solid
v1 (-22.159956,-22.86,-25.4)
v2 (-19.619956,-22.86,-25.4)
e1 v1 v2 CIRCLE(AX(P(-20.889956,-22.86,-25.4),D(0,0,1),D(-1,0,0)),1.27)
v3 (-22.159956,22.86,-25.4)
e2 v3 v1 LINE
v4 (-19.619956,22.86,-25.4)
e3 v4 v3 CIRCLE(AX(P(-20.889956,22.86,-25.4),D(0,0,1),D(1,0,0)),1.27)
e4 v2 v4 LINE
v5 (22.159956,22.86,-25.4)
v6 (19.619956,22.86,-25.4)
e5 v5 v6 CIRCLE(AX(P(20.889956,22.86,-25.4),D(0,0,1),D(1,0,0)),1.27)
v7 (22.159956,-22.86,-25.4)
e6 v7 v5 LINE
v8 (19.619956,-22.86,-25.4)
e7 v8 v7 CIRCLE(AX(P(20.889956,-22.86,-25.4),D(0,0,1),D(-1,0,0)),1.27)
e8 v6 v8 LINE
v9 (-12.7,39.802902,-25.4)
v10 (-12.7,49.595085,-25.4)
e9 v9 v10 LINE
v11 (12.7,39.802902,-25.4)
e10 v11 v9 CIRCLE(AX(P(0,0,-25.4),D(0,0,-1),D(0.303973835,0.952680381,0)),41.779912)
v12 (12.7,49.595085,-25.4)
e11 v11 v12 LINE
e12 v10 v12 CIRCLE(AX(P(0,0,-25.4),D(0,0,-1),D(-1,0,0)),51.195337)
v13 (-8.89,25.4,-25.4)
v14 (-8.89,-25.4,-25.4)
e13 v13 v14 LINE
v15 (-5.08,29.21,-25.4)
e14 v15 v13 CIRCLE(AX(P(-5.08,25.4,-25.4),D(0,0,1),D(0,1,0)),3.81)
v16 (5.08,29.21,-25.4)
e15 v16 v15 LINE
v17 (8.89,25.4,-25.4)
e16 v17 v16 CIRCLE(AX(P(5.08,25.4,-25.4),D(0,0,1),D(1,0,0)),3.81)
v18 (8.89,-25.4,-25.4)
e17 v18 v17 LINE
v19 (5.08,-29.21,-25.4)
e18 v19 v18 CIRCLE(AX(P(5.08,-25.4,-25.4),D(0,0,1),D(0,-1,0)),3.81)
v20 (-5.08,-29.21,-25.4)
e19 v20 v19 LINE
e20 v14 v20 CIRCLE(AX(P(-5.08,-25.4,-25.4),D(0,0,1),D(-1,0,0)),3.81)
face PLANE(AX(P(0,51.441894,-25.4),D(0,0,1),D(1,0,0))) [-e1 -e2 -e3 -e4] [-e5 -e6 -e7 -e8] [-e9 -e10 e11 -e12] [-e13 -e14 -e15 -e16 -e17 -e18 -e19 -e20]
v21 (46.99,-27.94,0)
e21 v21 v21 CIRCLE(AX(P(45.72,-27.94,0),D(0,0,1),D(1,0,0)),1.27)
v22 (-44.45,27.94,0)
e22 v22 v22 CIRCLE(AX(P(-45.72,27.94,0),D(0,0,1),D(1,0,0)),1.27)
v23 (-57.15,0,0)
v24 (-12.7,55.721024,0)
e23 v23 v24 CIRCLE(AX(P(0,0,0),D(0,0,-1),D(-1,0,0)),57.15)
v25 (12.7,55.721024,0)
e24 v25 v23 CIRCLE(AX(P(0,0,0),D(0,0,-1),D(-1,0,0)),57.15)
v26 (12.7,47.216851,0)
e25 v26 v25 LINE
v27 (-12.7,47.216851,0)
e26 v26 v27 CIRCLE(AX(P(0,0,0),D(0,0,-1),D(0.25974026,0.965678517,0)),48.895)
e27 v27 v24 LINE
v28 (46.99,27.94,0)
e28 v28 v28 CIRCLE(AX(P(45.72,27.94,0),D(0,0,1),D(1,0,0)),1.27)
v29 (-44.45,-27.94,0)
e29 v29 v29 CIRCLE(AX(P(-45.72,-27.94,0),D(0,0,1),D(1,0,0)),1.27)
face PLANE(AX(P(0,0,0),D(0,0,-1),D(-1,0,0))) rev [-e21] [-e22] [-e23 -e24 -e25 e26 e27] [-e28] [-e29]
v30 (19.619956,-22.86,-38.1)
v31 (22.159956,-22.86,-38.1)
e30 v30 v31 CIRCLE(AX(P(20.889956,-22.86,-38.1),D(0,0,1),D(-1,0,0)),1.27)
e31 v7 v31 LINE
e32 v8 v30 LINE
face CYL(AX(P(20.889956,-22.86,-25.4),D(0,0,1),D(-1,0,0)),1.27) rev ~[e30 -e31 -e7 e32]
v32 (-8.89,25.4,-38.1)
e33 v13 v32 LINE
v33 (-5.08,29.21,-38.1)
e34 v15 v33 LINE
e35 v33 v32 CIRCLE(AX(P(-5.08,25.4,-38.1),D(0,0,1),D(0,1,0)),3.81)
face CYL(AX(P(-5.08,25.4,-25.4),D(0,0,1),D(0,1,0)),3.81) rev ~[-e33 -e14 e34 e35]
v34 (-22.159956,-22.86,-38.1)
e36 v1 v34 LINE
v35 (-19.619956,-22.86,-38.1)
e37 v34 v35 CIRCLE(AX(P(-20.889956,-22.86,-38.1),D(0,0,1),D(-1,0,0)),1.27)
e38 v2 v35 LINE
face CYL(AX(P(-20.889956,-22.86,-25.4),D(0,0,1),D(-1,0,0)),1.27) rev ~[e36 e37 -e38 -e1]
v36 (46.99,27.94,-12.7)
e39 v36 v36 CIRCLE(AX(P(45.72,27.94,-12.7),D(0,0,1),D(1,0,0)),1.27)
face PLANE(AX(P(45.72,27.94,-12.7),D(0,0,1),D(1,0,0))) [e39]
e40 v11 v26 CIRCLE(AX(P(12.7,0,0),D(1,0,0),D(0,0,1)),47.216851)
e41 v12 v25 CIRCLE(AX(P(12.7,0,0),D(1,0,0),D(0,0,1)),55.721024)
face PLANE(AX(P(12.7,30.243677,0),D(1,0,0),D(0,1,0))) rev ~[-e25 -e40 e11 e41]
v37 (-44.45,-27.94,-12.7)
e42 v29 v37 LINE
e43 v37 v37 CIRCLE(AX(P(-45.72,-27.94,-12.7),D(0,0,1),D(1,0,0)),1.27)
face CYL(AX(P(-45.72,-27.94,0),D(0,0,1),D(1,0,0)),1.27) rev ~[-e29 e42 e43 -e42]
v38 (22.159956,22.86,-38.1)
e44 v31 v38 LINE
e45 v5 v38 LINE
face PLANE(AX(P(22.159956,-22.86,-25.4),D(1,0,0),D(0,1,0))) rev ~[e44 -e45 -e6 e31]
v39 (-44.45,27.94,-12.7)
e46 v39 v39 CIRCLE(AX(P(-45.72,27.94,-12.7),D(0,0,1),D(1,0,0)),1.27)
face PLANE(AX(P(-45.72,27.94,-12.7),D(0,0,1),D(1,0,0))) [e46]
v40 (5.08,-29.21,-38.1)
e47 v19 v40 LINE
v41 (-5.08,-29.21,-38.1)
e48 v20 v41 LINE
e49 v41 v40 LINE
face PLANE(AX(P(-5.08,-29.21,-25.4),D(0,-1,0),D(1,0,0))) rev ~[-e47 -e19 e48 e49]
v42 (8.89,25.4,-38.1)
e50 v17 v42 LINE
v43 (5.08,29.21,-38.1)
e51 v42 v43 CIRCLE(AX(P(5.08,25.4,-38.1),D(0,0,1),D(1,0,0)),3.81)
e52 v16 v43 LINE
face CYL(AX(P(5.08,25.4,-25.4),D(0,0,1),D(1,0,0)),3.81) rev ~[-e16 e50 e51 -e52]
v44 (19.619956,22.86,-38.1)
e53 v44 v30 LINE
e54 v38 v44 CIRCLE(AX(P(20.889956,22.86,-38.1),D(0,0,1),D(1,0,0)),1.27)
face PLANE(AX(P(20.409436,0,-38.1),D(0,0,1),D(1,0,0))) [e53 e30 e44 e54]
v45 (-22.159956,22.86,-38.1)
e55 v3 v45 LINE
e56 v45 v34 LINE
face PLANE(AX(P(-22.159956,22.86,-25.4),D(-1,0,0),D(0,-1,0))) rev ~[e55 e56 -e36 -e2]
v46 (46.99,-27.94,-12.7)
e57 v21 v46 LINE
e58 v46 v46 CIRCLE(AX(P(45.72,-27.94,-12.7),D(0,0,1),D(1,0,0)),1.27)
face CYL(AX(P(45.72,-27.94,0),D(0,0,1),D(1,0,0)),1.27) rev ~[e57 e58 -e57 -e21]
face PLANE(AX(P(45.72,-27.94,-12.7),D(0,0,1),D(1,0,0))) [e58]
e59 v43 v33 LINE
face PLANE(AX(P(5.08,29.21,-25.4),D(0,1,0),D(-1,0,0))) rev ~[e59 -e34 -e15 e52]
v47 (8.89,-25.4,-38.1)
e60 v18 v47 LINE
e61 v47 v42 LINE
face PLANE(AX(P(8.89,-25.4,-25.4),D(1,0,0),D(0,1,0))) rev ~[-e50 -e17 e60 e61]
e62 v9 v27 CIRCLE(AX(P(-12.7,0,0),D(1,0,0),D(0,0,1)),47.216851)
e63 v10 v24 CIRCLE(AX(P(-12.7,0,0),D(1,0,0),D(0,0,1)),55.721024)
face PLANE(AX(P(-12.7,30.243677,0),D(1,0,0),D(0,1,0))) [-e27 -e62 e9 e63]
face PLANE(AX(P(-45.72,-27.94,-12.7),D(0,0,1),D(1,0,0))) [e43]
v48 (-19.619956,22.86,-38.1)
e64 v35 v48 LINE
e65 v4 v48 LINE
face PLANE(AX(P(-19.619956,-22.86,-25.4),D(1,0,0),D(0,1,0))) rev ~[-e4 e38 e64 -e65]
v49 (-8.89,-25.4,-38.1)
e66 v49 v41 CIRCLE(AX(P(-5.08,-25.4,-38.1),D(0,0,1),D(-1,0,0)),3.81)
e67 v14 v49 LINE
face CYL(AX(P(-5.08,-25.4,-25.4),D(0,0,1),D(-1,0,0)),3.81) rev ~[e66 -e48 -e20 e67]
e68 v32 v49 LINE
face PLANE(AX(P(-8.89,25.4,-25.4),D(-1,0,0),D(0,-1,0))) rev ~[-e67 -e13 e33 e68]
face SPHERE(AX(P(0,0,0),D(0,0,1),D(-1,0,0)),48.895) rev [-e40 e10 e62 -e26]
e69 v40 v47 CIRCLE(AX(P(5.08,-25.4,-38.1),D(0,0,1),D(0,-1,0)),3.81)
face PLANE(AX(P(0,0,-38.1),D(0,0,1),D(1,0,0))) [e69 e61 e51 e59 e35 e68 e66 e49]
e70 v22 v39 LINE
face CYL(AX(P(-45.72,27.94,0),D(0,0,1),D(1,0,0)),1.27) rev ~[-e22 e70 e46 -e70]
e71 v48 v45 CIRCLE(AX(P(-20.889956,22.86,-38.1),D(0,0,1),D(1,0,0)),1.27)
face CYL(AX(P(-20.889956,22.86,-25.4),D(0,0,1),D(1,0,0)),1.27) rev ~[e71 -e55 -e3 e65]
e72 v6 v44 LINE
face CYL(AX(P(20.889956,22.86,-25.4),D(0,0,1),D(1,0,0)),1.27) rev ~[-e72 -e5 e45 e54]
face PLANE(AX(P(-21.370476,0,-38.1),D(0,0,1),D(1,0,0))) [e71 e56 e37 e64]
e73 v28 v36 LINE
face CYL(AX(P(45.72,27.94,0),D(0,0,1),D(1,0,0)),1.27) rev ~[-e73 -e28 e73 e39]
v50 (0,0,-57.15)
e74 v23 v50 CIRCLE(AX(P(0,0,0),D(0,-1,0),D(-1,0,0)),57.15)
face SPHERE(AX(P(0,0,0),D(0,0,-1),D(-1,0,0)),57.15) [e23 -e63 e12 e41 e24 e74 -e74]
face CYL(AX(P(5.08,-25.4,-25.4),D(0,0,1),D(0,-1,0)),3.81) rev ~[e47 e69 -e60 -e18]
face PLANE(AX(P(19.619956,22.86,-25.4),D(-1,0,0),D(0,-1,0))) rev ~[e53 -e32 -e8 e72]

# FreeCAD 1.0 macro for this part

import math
import FreeCAD as App
import Part
import Sketcher

V = App.Vector
Q = App.Units.Quantity

doc = App.newDocument("Part")
params = doc.addObject("Spreadsheet::Sheet", "Params")
for row, (alias, value) in enumerate([
    ("sketch1_radius", "2.25 in"),
    ("sketch1_radius2", "1.925 in"),
    ("revolution_angle", "360 deg"),
    ("sketch2_diameter", "0.1 in"),
    ("pocket1_length", "0.5 in"),
    ("sketch3_height", "2 in"),
    ("sketch3_radius", "0.05 in"),
    ("sketch3_radius2", "0.15 in"),
    ("sketch3_width", "0.4 in"),
    ("sketch3_height2", "1.8 in"),
    ("pocket2_length", "0.5 in"),
    ("sketch4_width", "1 in"),
    ("pocket3_length", "1 in"),
], start=1):
    params.set(f"A{row}", alias)
    params.set(f"B{row}", "=" + value)
    params.setAlias(f"B{row}", alias)

body = doc.addObject("PartDesign::Body", "Body")

# Sketch on XZ plane
sketch1 = doc.addObject("Sketcher::SketchObject", "Sketch")
body.addObject(sketch1)
sketch1.AttachmentSupport = (doc.XZ_Plane, [""])
sketch1.MapMode = "FlatFace"
sketch1.addGeometry([
    Part.LineSegment(V(-49, 0, 0), V(-57, 0, 0)),  # 0
    Part.ArcOfCircle(Part.Circle(V(0, 0, 0), V(0, 0, 1), 57), math.radians(180), math.radians(270)),  # 1
    Part.LineSegment(V(0, -57, 0), V(0, -25, 0)),  # 2
    Part.LineSegment(V(0, -25, 0), V(-42, -25, 0)),  # 3
    Part.ArcOfCircle(Part.Circle(V(0, 0, 0), V(0, 0, 1), 49), math.radians(180), math.radians(211)),  # 4
], False)
sketch1.addConstraint([
    Sketcher.Constraint("Coincident", 0, 2, 1, 1),
    Sketcher.Constraint("Coincident", 1, 2, 2, 1),
    Sketcher.Constraint("Coincident", 2, 2, 3, 1),
    Sketcher.Constraint("Coincident", 3, 2, 4, 2),
    Sketcher.Constraint("Coincident", 4, 1, 0, 1),
    Sketcher.Constraint("Horizontal", 0),
    Sketcher.Constraint("Vertical", 2),
    Sketcher.Constraint("Horizontal", 3),
    Sketcher.Constraint("Coincident", 1, 3, -1, 1),
    Sketcher.Constraint("Coincident", 4, 3, -1, 1),
    Sketcher.Constraint("PointOnObject", 0, 2, -1),
    Sketcher.Constraint("PointOnObject", 1, 2, -2),
    Sketcher.Constraint("Radius", 1, Q("2.25 in")),
    Sketcher.Constraint("DistanceY", 2, 2, -1, 1, Q("1 in")),
    Sketcher.Constraint("Radius", 4, Q("1.925 in")),
])
sketch1.setExpression("Constraints[12]", "Params.sketch1_radius")
sketch1.setExpression("Constraints[14]", "Params.sketch1_radius2")
revolution = doc.addObject("PartDesign::Revolution", "Revolution")
body.addObject(revolution)
revolution.Profile = sketch1
revolution.ReferenceAxis = (sketch1, ["V_Axis"])
revolution.setExpression("Angle", "Params.revolution_angle")

# Sketch on XY plane
sketch2 = doc.addObject("Sketcher::SketchObject", "Sketch001")
body.addObject(sketch2)
sketch2.AttachmentSupport = (doc.XY_Plane, [""])
sketch2.MapMode = "FlatFace"
sketch2.addGeometry([
    Part.Circle(V(45.7, 27.9, 0), V(0, 0, 1), 1.3),
    Part.Circle(V(45.7, -27.9, 0), V(0, 0, 1), 1.3),
    Part.Circle(V(-45.7, -27.9, 0), V(0, 0, 1), 1.3),
    Part.Circle(V(-45.7, 27.9, 0), V(0, 0, 1), 1.3),
], False)
sketch2.addConstraint([
    Sketcher.Constraint("Equal", 0, 1),
    Sketcher.Constraint("Equal", 1, 2),
    Sketcher.Constraint("Equal", 2, 3),
    Sketcher.Constraint("Symmetric", 0, 3, 2, 3, -1, 1),
    Sketcher.Constraint("Symmetric", 1, 3, 3, 3, -1, 1),
    Sketcher.Constraint("Symmetric", 1, 3, 2, 3, -2),
    Sketcher.Constraint("Diameter", 0, Q("0.1 in")),
    Sketcher.Constraint("DistanceX", -1, 1, 0, 3, Q("1.8 in")),
    Sketcher.Constraint("DistanceY", -1, 1, 0, 3, Q("1.1 in")),
])
sketch2.setExpression("Constraints[6]", "Params.sketch2_diameter")
pocket1 = doc.addObject("PartDesign::Pocket", "Pocket")
body.addObject(pocket1)
pocket1.Profile = sketch2
pocket1.setExpression("Length", "Params.pocket1_length")

# Sketch on XY plane
sketch3 = doc.addObject("Sketcher::SketchObject", "Sketch002")
body.addObject(sketch3)
sketch3.AttachmentSupport = (doc.XY_Plane, [""])
sketch3.MapMode = "FlatFace"
sketch3.AttachmentOffset = App.Placement(V(0, 0, -1 * 25.4), App.Rotation())
sketch3.addGeometry([
    Part.ArcOfCircle(Part.Circle(V(-20.9, 22.9, 0), V(0, 0, 1), 1.3), math.radians(0), math.radians(180)),  # 0
    Part.LineSegment(V(-22.2, 22.9, 0), V(-22.2, -22.9, 0)),  # 1
    Part.ArcOfCircle(Part.Circle(V(-20.9, -22.9, 0), V(0, 0, 1), 1.3), math.radians(180), math.radians(360)),  # 2
    Part.LineSegment(V(-19.6, -22.9, 0), V(-19.6, 22.9, 0)),  # 3
    Part.ArcOfCircle(Part.Circle(V(20.9, 22.9, 0), V(0, 0, 1), 1.3), math.radians(0), math.radians(180)),  # 4
    Part.LineSegment(V(19.6, 22.9, 0), V(19.6, -22.9, 0)),  # 5
    Part.ArcOfCircle(Part.Circle(V(20.9, -22.9, 0), V(0, 0, 1), 1.3), math.radians(180), math.radians(360)),  # 6
    Part.LineSegment(V(22.2, -22.9, 0), V(22.2, 22.9, 0)),  # 7
    Part.LineSegment(V(5.1, 29.2, 0), V(-5.1, 29.2, 0)),  # 8
    Part.ArcOfCircle(Part.Circle(V(-5.1, 25.4, 0), V(0, 0, 1), 3.8), math.radians(90), math.radians(180)),  # 9
    Part.LineSegment(V(-8.9, 25.4, 0), V(-8.9, -25.4, 0)),  # 10
    Part.ArcOfCircle(Part.Circle(V(-5.1, -25.4, 0), V(0, 0, 1), 3.8), math.radians(180), math.radians(270)),  # 11
    Part.LineSegment(V(-5.1, -29.2, 0), V(5.1, -29.2, 0)),  # 12
    Part.ArcOfCircle(Part.Circle(V(5.1, -25.4, 0), V(0, 0, 1), 3.8), math.radians(-90), math.radians(0)),  # 13
    Part.LineSegment(V(8.9, -25.4, 0), V(8.9, 25.4, 0)),  # 14
    Part.ArcOfCircle(Part.Circle(V(5.1, 25.4, 0), V(0, 0, 1), 3.8), math.radians(0), math.radians(90)),  # 15
], False)
sketch3.addConstraint([
    Sketcher.Constraint("Tangent", 0, 2, 1, 1),
    Sketcher.Constraint("Tangent", 1, 2, 2, 1),
    Sketcher.Constraint("Tangent", 2, 2, 3, 1),
    Sketcher.Constraint("Tangent", 3, 2, 0, 1),
    Sketcher.Constraint("Tangent", 4, 2, 5, 1),
    Sketcher.Constraint("Tangent", 5, 2, 6, 1),
    Sketcher.Constraint("Tangent", 6, 2, 7, 1),
    Sketcher.Constraint("Tangent", 7, 2, 4, 1),
    Sketcher.Constraint("Tangent", 8, 2, 9, 1),
    Sketcher.Constraint("Tangent", 9, 2, 10, 1),
    Sketcher.Constraint("Tangent", 10, 2, 11, 1),
    Sketcher.Constraint("Tangent", 11, 2, 12, 1),
    Sketcher.Constraint("Tangent", 12, 2, 13, 1),
    Sketcher.Constraint("Tangent", 13, 2, 14, 1),
    Sketcher.Constraint("Tangent", 14, 2, 15, 1),
    Sketcher.Constraint("Tangent", 15, 2, 8, 1),
    Sketcher.Constraint("Vertical", 1),
    Sketcher.Constraint("Vertical", 3),
    Sketcher.Constraint("Vertical", 5),
    Sketcher.Constraint("Vertical", 7),
    Sketcher.Constraint("Horizontal", 8),
    Sketcher.Constraint("Vertical", 10),
    Sketcher.Constraint("Horizontal", 12),
    Sketcher.Constraint("Vertical", 14),
    Sketcher.Constraint("Equal", 2, 4),
    Sketcher.Constraint("Equal", 9, 11),
    Sketcher.Constraint("Equal", 11, 13),
    Sketcher.Constraint("Equal", 13, 15),
    Sketcher.Constraint("Symmetric", 2, 3, 4, 3, -1, 1),
    Sketcher.Constraint("Symmetric", 9, 3, 13, 3, -1, 1),
    Sketcher.Constraint("Horizontal", 0, 3, 4, 3),
    Sketcher.Constraint("Horizontal", 2, 3, 6, 3),
    Sketcher.Constraint("DistanceY", 10, 2, 10, 1, Q("2 in")),
    Sketcher.Constraint("Radius", 0, Q("0.05 in")),
    Sketcher.Constraint("Radius", 9, Q("0.15 in")),
    Sketcher.Constraint("DistanceX", 8, 2, 8, 1, Q("0.4 in")),
    Sketcher.Constraint("DistanceY", 1, 2, 1, 1, Q("1.8 in")),
    Sketcher.Constraint("DistanceX", 0, 3, 4, 3, Q("41.779912 mm")),
])
sketch3.setExpression("Constraints[32]", "Params.sketch3_height")
sketch3.setExpression("Constraints[33]", "Params.sketch3_radius")
sketch3.setExpression("Constraints[34]", "Params.sketch3_radius2")
sketch3.setExpression("Constraints[35]", "Params.sketch3_width")
sketch3.setExpression("Constraints[36]", "Params.sketch3_height2")
pocket2 = doc.addObject("PartDesign::Pocket", "Pocket001")
body.addObject(pocket2)
pocket2.Profile = sketch3
pocket2.setExpression("Length", "Params.pocket2_length")

# Sketch on XY plane
sketch4 = doc.addObject("Sketcher::SketchObject", "Sketch003")
body.addObject(sketch4)
sketch4.AttachmentSupport = (doc.XY_Plane, [""])
sketch4.MapMode = "FlatFace"
sketch4.addGeometry([
    Part.LineSegment(V(-13, 73, 0), V(-13, 30, 0)),
    Part.LineSegment(V(-13, 30, 0), V(13, 30, 0)),
    Part.LineSegment(V(13, 30, 0), V(13, 73, 0)),
    Part.LineSegment(V(13, 73, 0), V(-13, 73, 0)),
], False)
sketch4.addConstraint([
    Sketcher.Constraint("Coincident", 0, 2, 1, 1),
    Sketcher.Constraint("Coincident", 1, 2, 2, 1),
    Sketcher.Constraint("Coincident", 2, 2, 3, 1),
    Sketcher.Constraint("Coincident", 3, 2, 0, 1),
    Sketcher.Constraint("Vertical", 0),
    Sketcher.Constraint("Horizontal", 1),
    Sketcher.Constraint("Vertical", 2),
    Sketcher.Constraint("Horizontal", 3),
    Sketcher.Constraint("DistanceX", 1, 1, 1, 2, Q("1 in")),
    Sketcher.Constraint("DistanceX", 0, 2, -1, 1, Q("0.5 in")),
    Sketcher.Constraint("DistanceY", 0, 2, 0, 1, Q("42.396435 mm")),
    Sketcher.Constraint("DistanceY", -1, 1, 0, 2, Q("30.243677 mm")),
])
sketch4.setExpression("Constraints[8]", "Params.sketch4_width")
pocket3 = doc.addObject("PartDesign::Pocket", "Pocket002")
body.addObject(pocket3)
pocket3.Profile = sketch4
pocket3.setExpression("Length", "Params.pocket3_length")

doc.recompute()
